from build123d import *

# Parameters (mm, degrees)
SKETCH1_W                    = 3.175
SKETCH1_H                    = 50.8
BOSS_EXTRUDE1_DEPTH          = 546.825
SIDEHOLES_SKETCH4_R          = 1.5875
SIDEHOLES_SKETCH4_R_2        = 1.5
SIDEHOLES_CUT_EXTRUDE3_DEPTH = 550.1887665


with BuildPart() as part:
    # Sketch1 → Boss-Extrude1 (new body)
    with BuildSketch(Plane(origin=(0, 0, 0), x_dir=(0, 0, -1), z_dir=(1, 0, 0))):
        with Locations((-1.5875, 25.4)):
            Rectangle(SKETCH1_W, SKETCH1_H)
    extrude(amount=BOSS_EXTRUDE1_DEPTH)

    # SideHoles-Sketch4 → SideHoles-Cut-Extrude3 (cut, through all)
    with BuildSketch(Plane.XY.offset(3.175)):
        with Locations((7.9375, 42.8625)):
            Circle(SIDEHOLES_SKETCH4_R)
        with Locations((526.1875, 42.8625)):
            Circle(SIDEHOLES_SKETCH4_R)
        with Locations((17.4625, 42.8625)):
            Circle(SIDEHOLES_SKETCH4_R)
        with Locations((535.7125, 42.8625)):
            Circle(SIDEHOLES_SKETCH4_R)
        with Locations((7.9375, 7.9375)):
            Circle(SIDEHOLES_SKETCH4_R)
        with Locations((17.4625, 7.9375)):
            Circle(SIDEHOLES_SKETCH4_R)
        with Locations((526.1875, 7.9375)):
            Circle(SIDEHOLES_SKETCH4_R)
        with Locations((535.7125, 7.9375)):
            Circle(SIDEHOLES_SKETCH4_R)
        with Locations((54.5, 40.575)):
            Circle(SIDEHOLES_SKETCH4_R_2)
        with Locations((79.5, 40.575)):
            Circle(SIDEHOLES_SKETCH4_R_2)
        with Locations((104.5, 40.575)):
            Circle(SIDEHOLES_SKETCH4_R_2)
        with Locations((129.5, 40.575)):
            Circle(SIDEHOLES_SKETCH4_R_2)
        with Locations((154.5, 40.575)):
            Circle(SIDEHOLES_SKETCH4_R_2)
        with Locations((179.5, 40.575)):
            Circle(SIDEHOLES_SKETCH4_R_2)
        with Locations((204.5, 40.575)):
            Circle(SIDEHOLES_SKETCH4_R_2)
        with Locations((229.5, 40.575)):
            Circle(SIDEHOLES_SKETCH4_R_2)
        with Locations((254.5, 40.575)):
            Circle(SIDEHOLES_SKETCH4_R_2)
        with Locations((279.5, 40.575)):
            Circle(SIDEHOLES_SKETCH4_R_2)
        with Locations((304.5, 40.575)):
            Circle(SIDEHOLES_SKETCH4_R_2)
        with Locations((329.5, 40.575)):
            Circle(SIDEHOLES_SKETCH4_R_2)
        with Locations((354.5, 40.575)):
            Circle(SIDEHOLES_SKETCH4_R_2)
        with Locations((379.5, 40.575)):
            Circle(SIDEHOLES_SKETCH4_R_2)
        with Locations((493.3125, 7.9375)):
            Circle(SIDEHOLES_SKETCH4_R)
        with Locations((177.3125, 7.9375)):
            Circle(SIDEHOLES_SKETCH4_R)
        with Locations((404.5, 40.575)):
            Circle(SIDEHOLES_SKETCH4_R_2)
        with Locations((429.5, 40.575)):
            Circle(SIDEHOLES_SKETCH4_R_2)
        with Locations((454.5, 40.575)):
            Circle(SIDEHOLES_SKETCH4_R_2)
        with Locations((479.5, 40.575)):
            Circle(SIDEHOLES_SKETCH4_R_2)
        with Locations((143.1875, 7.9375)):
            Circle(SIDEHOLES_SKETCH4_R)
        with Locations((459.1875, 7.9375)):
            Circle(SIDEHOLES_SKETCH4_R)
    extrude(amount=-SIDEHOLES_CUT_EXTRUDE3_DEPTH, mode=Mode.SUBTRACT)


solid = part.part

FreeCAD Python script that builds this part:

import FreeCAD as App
import Part
import Sketcher

V = App.Vector
Q = App.Units.Quantity

doc = App.newDocument("Part")
body = doc.addObject("PartDesign::Body", "Body")

sketch1 = body.newObject("Sketcher::SketchObject", "Sketch")
sketch1.AttachmentSupport = (doc.getObject("YZ_Plane"), [""])
sketch1.MapMode = "FlatFace"
sketch1.addGeometry(Part.LineSegment(V(50.8, 3.2, 0), V(0, 3.2, 0)), False)
sketch1.addGeometry(Part.LineSegment(V(0, 3.2, 0), V(0, 0, 0)), False)
sketch1.addGeometry(Part.LineSegment(V(0, 0, 0), V(50.8, 0, 0)), False)
sketch1.addGeometry(Part.LineSegment(V(50.8, 0, 0), V(50.8, 3.2, 0)), False)
sketch1.addConstraint(Sketcher.Constraint("Coincident", 0, 2, 1, 1))
sketch1.addConstraint(Sketcher.Constraint("Coincident", 1, 2, 2, 1))
sketch1.addConstraint(Sketcher.Constraint("Coincident", 2, 2, 3, 1))
sketch1.addConstraint(Sketcher.Constraint("Coincident", 3, 2, 0, 1))
sketch1.addConstraint(Sketcher.Constraint("Horizontal", 0))
sketch1.addConstraint(Sketcher.Constraint("Vertical", 1))
sketch1.addConstraint(Sketcher.Constraint("Horizontal", 2))
sketch1.addConstraint(Sketcher.Constraint("Vertical", 3))
sketch1.addConstraint(Sketcher.Constraint("Coincident", 1, 2, -1, 1))
sketch1.addConstraint(Sketcher.Constraint("DistanceX", 0, 2, 0, 1, Q("2 in")))
sketch1.addConstraint(Sketcher.Constraint("DistanceY", 1, 2, 1, 1, Q("0.125 in")))
pad1 = body.newObject("PartDesign::Pad", "Pad")
pad1.Profile = sketch1
pad1.Length = 546.825

sketch2 = body.newObject("Sketcher::SketchObject", "Sketch001")
sketch2.AttachmentSupport = (doc.getObject("XY_Plane"), [""])
sketch2.MapMode = "FlatFace"
sketch2.AttachmentOffset = App.Placement(V(0, 0, 0.125 * 25.4), App.Rotation())
sketch2.addGeometry(Part.Circle(V(7.9, 42.9, 0), V(0, 0, 1), 1.6), False)
sketch2.addGeometry(Part.Circle(V(526.2, 42.9, 0), V(0, 0, 1), 1.6), False)
sketch2.addGeometry(Part.Circle(V(17.5, 42.9, 0), V(0, 0, 1), 1.6), False)
sketch2.addGeometry(Part.Circle(V(535.7, 42.9, 0), V(0, 0, 1), 1.6), False)
sketch2.addGeometry(Part.Circle(V(7.9, 7.9, 0), V(0, 0, 1), 1.6), False)
sketch2.addGeometry(Part.Circle(V(17.5, 7.9, 0), V(0, 0, 1), 1.6), False)
sketch2.addGeometry(Part.Circle(V(526.2, 7.9, 0), V(0, 0, 1), 1.6), False)
sketch2.addGeometry(Part.Circle(V(535.7, 7.9, 0), V(0, 0, 1), 1.6), False)
sketch2.addGeometry(Part.Circle(V(54.5, 40.6, 0), V(0, 0, 1), 1.5), False)
sketch2.addGeometry(Part.Circle(V(79.5, 40.6, 0), V(0, 0, 1), 1.5), False)
sketch2.addGeometry(Part.Circle(V(104.5, 40.6, 0), V(0, 0, 1), 1.5), False)
sketch2.addGeometry(Part.Circle(V(129.5, 40.6, 0), V(0, 0, 1), 1.5), False)
sketch2.addGeometry(Part.Circle(V(154.5, 40.6, 0), V(0, 0, 1), 1.5), False)
sketch2.addGeometry(Part.Circle(V(179.5, 40.6, 0), V(0, 0, 1), 1.5), False)
sketch2.addGeometry(Part.Circle(V(204.5, 40.6, 0), V(0, 0, 1), 1.5), False)
sketch2.addGeometry(Part.Circle(V(229.5, 40.6, 0), V(0, 0, 1), 1.5), False)
sketch2.addGeometry(Part.Circle(V(254.5, 40.6, 0), V(0, 0, 1), 1.5), False)
sketch2.addGeometry(Part.Circle(V(279.5, 40.6, 0), V(0, 0, 1), 1.5), False)
sketch2.addGeometry(Part.Circle(V(304.5, 40.6, 0), V(0, 0, 1), 1.5), False)
sketch2.addGeometry(Part.Circle(V(329.5, 40.6, 0), V(0, 0, 1), 1.5), False)
sketch2.addGeometry(Part.Circle(V(354.5, 40.6, 0), V(0, 0, 1), 1.5), False)
sketch2.addGeometry(Part.Circle(V(379.5, 40.6, 0), V(0, 0, 1), 1.5), False)
sketch2.addGeometry(Part.Circle(V(493.3, 7.9, 0), V(0, 0, 1), 1.6), False)
sketch2.addGeometry(Part.Circle(V(177.3, 7.9, 0), V(0, 0, 1), 1.6), False)
sketch2.addGeometry(Part.Circle(V(404.5, 40.6, 0), V(0, 0, 1), 1.5), False)
sketch2.addGeometry(Part.Circle(V(429.5, 40.6, 0), V(0, 0, 1), 1.5), False)
sketch2.addGeometry(Part.Circle(V(454.5, 40.6, 0), V(0, 0, 1), 1.5), False)
sketch2.addGeometry(Part.Circle(V(479.5, 40.6, 0), V(0, 0, 1), 1.5), False)
sketch2.addGeometry(Part.Circle(V(143.2, 7.9, 0), V(0, 0, 1), 1.6), False)
sketch2.addGeometry(Part.Circle(V(459.2, 7.9, 0), V(0, 0, 1), 1.6), False)
sketch2.addConstraint(Sketcher.Constraint("Equal", 0, 1))
sketch2.addConstraint(Sketcher.Constraint("Equal", 1, 2))
sketch2.addConstraint(Sketcher.Constraint("Equal", 2, 3))
sketch2.addConstraint(Sketcher.Constraint("Equal", 3, 4))
sketch2.addConstraint(Sketcher.Constraint("Equal", 4, 5))
sketch2.addConstraint(Sketcher.Constraint("Equal", 5, 6))
sketch2.addConstraint(Sketcher.Constraint("Equal", 6, 7))
sketch2.addConstraint(Sketcher.Constraint("Equal", 8, 9))
sketch2.addConstraint(Sketcher.Constraint("Equal", 9, 10))
sketch2.addConstraint(Sketcher.Constraint("Equal", 10, 11))
sketch2.addConstraint(Sketcher.Constraint("Equal", 11, 12))
sketch2.addConstraint(Sketcher.Constraint("Equal", 12, 13))
sketch2.addConstraint(Sketcher.Constraint("Equal", 13, 14))
sketch2.addConstraint(Sketcher.Constraint("Equal", 14, 15))
sketch2.addConstraint(Sketcher.Constraint("Equal", 15, 16))
sketch2.addConstraint(Sketcher.Constraint("Equal", 16, 17))
sketch2.addConstraint(Sketcher.Constraint("Equal", 17, 18))
sketch2.addConstraint(Sketcher.Constraint("Equal", 18, 19))
sketch2.addConstraint(Sketcher.Constraint("Equal", 19, 20))
sketch2.addConstraint(Sketcher.Constraint("Equal", 20, 21))
sketch2.addConstraint(Sketcher.Constraint("Equal", 7, 22))
sketch2.addConstraint(Sketcher.Constraint("Equal", 22, 23))
sketch2.addConstraint(Sketcher.Constraint("Equal", 21, 24))
sketch2.addConstraint(Sketcher.Constraint("Equal", 24, 25))
sketch2.addConstraint(Sketcher.Constraint("Equal", 25, 26))
sketch2.addConstraint(Sketcher.Constraint("Equal", 26, 27))
sketch2.addConstraint(Sketcher.Constraint("Equal", 23, 28))
sketch2.addConstraint(Sketcher.Constraint("Equal", 28, 29))
sketch2.addConstraint(Sketcher.Constraint("Horizontal", 0, 3, 1, 3))
sketch2.addConstraint(Sketcher.Constraint("Horizontal", 1, 3, 2, 3))
sketch2.addConstraint(Sketcher.Constraint("Horizontal", 2, 3, 3, 3))
sketch2.addConstraint(Sketcher.Constraint("Horizontal", 4, 3, 5, 3))
sketch2.addConstraint(Sketcher.Constraint("Horizontal", 5, 3, 6, 3))
sketch2.addConstraint(Sketcher.Constraint("Horizontal", 6, 3, 7, 3))
sketch2.addConstraint(Sketcher.Constraint("Horizontal", 8, 3, 9, 3))
sketch2.addConstraint(Sketcher.Constraint("Horizontal", 9, 3, 10, 3))
sketch2.addConstraint(Sketcher.Constraint("Horizontal", 10, 3, 11, 3))
sketch2.addConstraint(Sketcher.Constraint("Horizontal", 11, 3, 12, 3))
sketch2.addConstraint(Sketcher.Constraint("Horizontal", 12, 3, 13, 3))
sketch2.addConstraint(Sketcher.Constraint("Horizontal", 13, 3, 14, 3))
sketch2.addConstraint(Sketcher.Constraint("Horizontal", 14, 3, 15, 3))
sketch2.addConstraint(Sketcher.Constraint("Horizontal", 15, 3, 16, 3))
sketch2.addConstraint(Sketcher.Constraint("Horizontal", 16, 3, 17, 3))
sketch2.addConstraint(Sketcher.Constraint("Horizontal", 17, 3, 18, 3))
sketch2.addConstraint(Sketcher.Constraint("Horizontal", 18, 3, 19, 3))
sketch2.addConstraint(Sketcher.Constraint("Horizontal", 19, 3, 20, 3))
sketch2.addConstraint(Sketcher.Constraint("Horizontal", 20, 3, 21, 3))
sketch2.addConstraint(Sketcher.Constraint("Horizontal", 7, 3, 22, 3))
sketch2.addConstraint(Sketcher.Constraint("Horizontal", 22, 3, 23, 3))
sketch2.addConstraint(Sketcher.Constraint("Horizontal", 21, 3, 24, 3))
sketch2.addConstraint(Sketcher.Constraint("Horizontal", 24, 3, 25, 3))
sketch2.addConstraint(Sketcher.Constraint("Horizontal", 25, 3, 26, 3))
sketch2.addConstraint(Sketcher.Constraint("Horizontal", 26, 3, 27, 3))
sketch2.addConstraint(Sketcher.Constraint("Horizontal", 23, 3, 28, 3))
sketch2.addConstraint(Sketcher.Constraint("Horizontal", 28, 3, 29, 3))
sketch2.addConstraint(Sketcher.Constraint("Vertical", 0, 3, 4, 3))
sketch2.addConstraint(Sketcher.Constraint("Vertical", 2, 3, 5, 3))
sketch2.addConstraint(Sketcher.Constraint("Vertical", 1, 3, 6, 3))
sketch2.addConstraint(Sketcher.Constraint("Vertical", 3, 3, 7, 3))
sketch2.addConstraint(Sketcher.Constraint("Diameter", 0, Q("0.125 in")))
sketch2.addConstraint(Sketcher.Constraint("Diameter", 8, Q("3 mm")))
sketch2.addConstraint(Sketcher.Constraint("DistanceX", -1, 1, 0, 3, Q("0.3125 in")))
sketch2.addConstraint(Sketcher.Constraint("DistanceY", -1, 1, 0, 3, Q("1.6875 in")))
sketch2.addConstraint(Sketcher.Constraint("DistanceX", -1, 1, 2, 3, Q("0.6875 in")))
sketch2.addConstraint(Sketcher.Constraint("DistanceY", -1, 1, 4, 3, Q("0.3125 in")))
sketch2.addConstraint(Sketcher.Constraint("DistanceX", 1, 3, 3, 3, Q("0.375 in")))
sketch2.addConstraint(Sketcher.Constraint("DistanceX", -1, 1, 1, 3, Q("526.1875 mm")))
sketch2.addConstraint(Sketcher.Constraint("DistanceX", -1, 1, 8, 3, Q("54.5 mm")))
sketch2.addConstraint(Sketcher.Constraint("DistanceY", -1, 1, 8, 3, Q("40.575 mm")))
sketch2.addConstraint(Sketcher.Constraint("DistanceX", -1, 1, 9, 3, Q("79.5 mm")))
sketch2.addConstraint(Sketcher.Constraint("DistanceX", -1, 1, 10, 3, Q("104.5 mm")))
sketch2.addConstraint(Sketcher.Constraint("DistanceX", -1, 1, 11, 3, Q("129.5 mm")))
sketch2.addConstraint(Sketcher.Constraint("DistanceX", -1, 1, 12, 3, Q("154.5 mm")))
sketch2.addConstraint(Sketcher.Constraint("DistanceX", -1, 1, 13, 3, Q("179.5 mm")))
sketch2.addConstraint(Sketcher.Constraint("DistanceX", -1, 1, 14, 3, Q("204.5 mm")))
sketch2.addConstraint(Sketcher.Constraint("DistanceX", -1, 1, 15, 3, Q("229.5 mm")))
sketch2.addConstraint(Sketcher.Constraint("DistanceX", -1, 1, 16, 3, Q("254.5 mm")))
sketch2.addConstraint(Sketcher.Constraint("DistanceX", -1, 1, 17, 3, Q("279.5 mm")))
sketch2.addConstraint(Sketcher.Constraint("DistanceX", -1, 1, 18, 3, Q("304.5 mm")))
sketch2.addConstraint(Sketcher.Constraint("DistanceX", -1, 1, 19, 3, Q("329.5 mm")))
sketch2.addConstraint(Sketcher.Constraint("DistanceX", -1, 1, 20, 3, Q("354.5 mm")))
sketch2.addConstraint(Sketcher.Constraint("DistanceX", -1, 1, 21, 3, Q("379.5 mm")))
sketch2.addConstraint(Sketcher.Constraint("DistanceX", -1, 1, 22, 3, Q("493.3125 mm")))
sketch2.addConstraint(Sketcher.Constraint("DistanceX", -1, 1, 23, 3, Q("177.3125 mm")))
sketch2.addConstraint(Sketcher.Constraint("DistanceX", -1, 1, 24, 3, Q("404.5 mm")))
sketch2.addConstraint(Sketcher.Constraint("DistanceX", -1, 1, 25, 3, Q("429.5 mm")))
sketch2.addConstraint(Sketcher.Constraint("DistanceX", -1, 1, 26, 3, Q("454.5 mm")))
sketch2.addConstraint(Sketcher.Constraint("DistanceX", -1, 1, 27, 3, Q("479.5 mm")))
sketch2.addConstraint(Sketcher.Constraint("DistanceX", -1, 1, 28, 3, Q("143.1875 mm")))
sketch2.addConstraint(Sketcher.Constraint("DistanceX", -1, 1, 29, 3, Q("459.1875 mm")))
pocket1 = body.newObject("PartDesign::Pocket", "Pocket")
pocket1.Profile = sketch2
pocket1.Type = "ThroughAll"

doc.recompute()
